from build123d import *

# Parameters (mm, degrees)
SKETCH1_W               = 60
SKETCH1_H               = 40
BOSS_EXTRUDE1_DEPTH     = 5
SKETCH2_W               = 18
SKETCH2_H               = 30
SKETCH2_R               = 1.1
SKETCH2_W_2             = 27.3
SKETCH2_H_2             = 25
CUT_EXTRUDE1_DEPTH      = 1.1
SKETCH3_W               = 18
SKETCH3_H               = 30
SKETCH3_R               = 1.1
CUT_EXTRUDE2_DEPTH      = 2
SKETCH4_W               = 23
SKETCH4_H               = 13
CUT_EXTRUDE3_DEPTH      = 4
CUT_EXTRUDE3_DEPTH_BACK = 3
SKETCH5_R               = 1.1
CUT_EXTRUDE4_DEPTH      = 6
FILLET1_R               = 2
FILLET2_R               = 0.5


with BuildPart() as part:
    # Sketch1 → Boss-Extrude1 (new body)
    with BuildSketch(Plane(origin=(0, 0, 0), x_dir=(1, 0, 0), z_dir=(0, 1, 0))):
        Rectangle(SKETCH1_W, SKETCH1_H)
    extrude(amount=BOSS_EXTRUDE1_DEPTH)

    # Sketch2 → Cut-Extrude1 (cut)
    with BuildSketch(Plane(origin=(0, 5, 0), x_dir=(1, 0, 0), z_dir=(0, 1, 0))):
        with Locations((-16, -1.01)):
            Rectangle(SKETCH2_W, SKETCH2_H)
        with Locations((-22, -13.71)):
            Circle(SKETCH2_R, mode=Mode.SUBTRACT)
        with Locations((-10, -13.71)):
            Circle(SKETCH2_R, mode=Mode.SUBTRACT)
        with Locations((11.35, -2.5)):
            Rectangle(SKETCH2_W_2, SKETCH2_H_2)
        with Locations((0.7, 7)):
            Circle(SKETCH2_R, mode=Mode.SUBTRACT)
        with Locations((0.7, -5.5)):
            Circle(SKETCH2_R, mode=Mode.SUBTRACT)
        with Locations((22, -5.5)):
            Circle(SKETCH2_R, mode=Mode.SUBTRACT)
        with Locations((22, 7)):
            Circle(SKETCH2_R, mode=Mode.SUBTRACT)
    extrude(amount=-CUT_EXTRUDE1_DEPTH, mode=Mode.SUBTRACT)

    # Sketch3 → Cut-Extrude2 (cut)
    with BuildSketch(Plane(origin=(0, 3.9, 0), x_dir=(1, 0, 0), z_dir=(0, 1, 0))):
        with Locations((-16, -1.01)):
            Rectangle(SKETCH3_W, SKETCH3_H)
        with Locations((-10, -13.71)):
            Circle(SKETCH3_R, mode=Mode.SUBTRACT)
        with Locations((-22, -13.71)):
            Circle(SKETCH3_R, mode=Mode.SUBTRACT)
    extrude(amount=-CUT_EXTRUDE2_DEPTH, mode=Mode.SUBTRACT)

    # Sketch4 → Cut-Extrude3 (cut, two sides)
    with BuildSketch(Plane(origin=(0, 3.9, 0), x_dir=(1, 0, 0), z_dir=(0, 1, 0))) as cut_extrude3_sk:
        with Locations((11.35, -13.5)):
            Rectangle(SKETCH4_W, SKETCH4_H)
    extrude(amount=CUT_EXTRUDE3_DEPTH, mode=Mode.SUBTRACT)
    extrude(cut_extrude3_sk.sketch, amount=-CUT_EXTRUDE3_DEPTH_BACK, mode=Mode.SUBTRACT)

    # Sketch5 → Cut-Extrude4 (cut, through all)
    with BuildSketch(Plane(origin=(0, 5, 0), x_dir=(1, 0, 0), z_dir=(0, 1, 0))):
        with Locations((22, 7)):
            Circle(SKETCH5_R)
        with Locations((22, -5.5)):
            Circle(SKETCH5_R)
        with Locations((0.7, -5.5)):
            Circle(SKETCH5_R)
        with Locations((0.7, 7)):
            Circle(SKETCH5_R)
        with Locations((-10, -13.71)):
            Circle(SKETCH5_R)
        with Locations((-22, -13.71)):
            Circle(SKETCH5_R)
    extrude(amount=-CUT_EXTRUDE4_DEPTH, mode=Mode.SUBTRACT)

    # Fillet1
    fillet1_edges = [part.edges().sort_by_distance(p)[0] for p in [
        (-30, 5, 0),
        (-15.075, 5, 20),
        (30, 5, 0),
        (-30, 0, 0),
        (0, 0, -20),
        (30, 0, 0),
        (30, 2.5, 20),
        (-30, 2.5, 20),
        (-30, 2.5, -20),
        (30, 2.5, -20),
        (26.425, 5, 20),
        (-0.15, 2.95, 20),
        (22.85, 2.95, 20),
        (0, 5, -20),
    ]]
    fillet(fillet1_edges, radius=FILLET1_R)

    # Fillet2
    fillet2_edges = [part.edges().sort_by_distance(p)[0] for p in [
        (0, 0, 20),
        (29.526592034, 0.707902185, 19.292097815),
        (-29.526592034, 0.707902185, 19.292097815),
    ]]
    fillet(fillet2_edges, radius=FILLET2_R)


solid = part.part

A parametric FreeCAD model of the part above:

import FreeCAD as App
import Part
import Sketcher


def edges_at(feature, points):
    """Names of the edges that pass closest to the given points."""
    edges = feature.Shape.Edges
    near = lambda p: min(range(len(edges)), key=lambda i: edges[i].distToShape(Part.Vertex(*p))[0])
    return sorted({f"Edge{near(p) + 1}" for p in points})


def add_polygon(sketch, points):
    """Adds a closed chain of lines whose ends are joined by coincident constraints."""
    first, n = sketch.GeometryCount, len(points)
    for a, b in zip(points, points[1:] + points[:1]):
        sketch.addGeometry(Part.LineSegment(App.Vector(*a, 0), App.Vector(*b, 0)), False)
    for i in range(n):
        sketch.addConstraint(Sketcher.Constraint("Coincident", first + i, 2, first + (i + 1) % n, 1))

doc = App.newDocument("Part")
body = doc.addObject("PartDesign::Body", "Body")

sketch1 = doc.addObject("Sketcher::SketchObject", "Sketch")
body.addObject(sketch1)
sketch1.AttachmentSupport = (doc.XZ_Plane, [""])
sketch1.MapMode = "FlatFace"
add_polygon(sketch1, [(-30, -20), (-30, 20), (30, 20), (30, -20)])
sketch1.addConstraint(Sketcher.Constraint("Vertical", 0))
sketch1.addConstraint(Sketcher.Constraint("Horizontal", 1))
sketch1.addConstraint(Sketcher.Constraint("Vertical", 2))
sketch1.addConstraint(Sketcher.Constraint("Horizontal", 3))
sketch1.addConstraint(Sketcher.Constraint("Symmetric", 0, 2, 2, 2, -1, 1))
sketch1.addConstraint(Sketcher.Constraint("DistanceX", 1, 1, 1, 2, 60.0))
sketch1.addConstraint(Sketcher.Constraint("DistanceY", 0, 1, 0, 2, 40.0))
pad1 = doc.addObject("PartDesign::Pad", "Pad")
body.addObject(pad1)
pad1.Profile = sketch1
pad1.Length = 5
pad1.Reversed = True

sketch2 = doc.addObject("Sketcher::SketchObject", "Sketch001")
body.addObject(sketch2)
sketch2.AttachmentSupport = (doc.XZ_Plane, [""])
sketch2.MapMode = "FlatFace"
sketch2.AttachmentOffset = App.Placement(App.Vector(0, 0, -5), App.Rotation())
add_polygon(sketch2, [(-25, -13.99), (-25, 16.01), (-7, 16.01), (-7, -13.99)])
sketch2.addGeometry(Part.Circle(App.Vector(-22, 13.71, 0), App.Vector(0, 0, 1), 1.1), False)
sketch2.addGeometry(Part.Circle(App.Vector(-10, 13.71, 0), App.Vector(0, 0, 1), 1.1), False)
add_polygon(sketch2, [(-2.3, -10), (-2.3, 15), (25, 15), (25, -10)])
sketch2.addGeometry(Part.Circle(App.Vector(0.7, 5.5, 0), App.Vector(0, 0, 1), 1.1), False)
sketch2.addGeometry(Part.Circle(App.Vector(22, 5.5, 0), App.Vector(0, 0, 1), 1.1), False)
sketch2.addGeometry(Part.Circle(App.Vector(0.7, -7, 0), App.Vector(0, 0, 1), 1.1), False)
sketch2.addGeometry(Part.Circle(App.Vector(22, -7, 0), App.Vector(0, 0, 1), 1.1), False)
sketch2.addConstraint(Sketcher.Constraint("Vertical", 0))
sketch2.addConstraint(Sketcher.Constraint("Horizontal", 1))
sketch2.addConstraint(Sketcher.Constraint("Vertical", 2))
sketch2.addConstraint(Sketcher.Constraint("Horizontal", 3))
sketch2.addConstraint(Sketcher.Constraint("Vertical", 6))
sketch2.addConstraint(Sketcher.Constraint("Horizontal", 7))
sketch2.addConstraint(Sketcher.Constraint("Vertical", 8))
sketch2.addConstraint(Sketcher.Constraint("Horizontal", 9))
sketch2.addConstraint(Sketcher.Constraint("Equal", 4, 5))
sketch2.addConstraint(Sketcher.Constraint("Equal", 5, 10))
sketch2.addConstraint(Sketcher.Constraint("Equal", 10, 11))
sketch2.addConstraint(Sketcher.Constraint("Equal", 11, 12))
sketch2.addConstraint(Sketcher.Constraint("Equal", 12, 13))
sketch2.addConstraint(Sketcher.Constraint("Horizontal", 4, 3, 5, 3))
sketch2.addConstraint(Sketcher.Constraint("Horizontal", 10, 3, 11, 3))
sketch2.addConstraint(Sketcher.Constraint("Horizontal", 12, 3, 13, 3))
sketch2.addConstraint(Sketcher.Constraint("Vertical", 10, 3, 12, 3))
sketch2.addConstraint(Sketcher.Constraint("Vertical", 11, 3, 13, 3))
sketch2.addConstraint(Sketcher.Constraint("Diameter", 4, 2.2))
sketch2.addConstraint(Sketcher.Constraint("DistanceX", 1, 1, 1, 2, 18.0))
sketch2.addConstraint(Sketcher.Constraint("DistanceY", 0, 1, 0, 2, 30.0))
sketch2.addConstraint(Sketcher.Constraint("DistanceY", 6, 1, 6, 2, 25.0))
sketch2.addConstraint(Sketcher.Constraint("DistanceX", 7, 1, 7, 2, 27.3))
sketch2.addConstraint(Sketcher.Constraint("DistanceX", 4, 3, -1, 1, 22.0))
sketch2.addConstraint(Sketcher.Constraint("DistanceX", 5, 3, -1, 1, 10.0))
sketch2.addConstraint(Sketcher.Constraint("DistanceX", -1, 1, 11, 3, 22.0))
sketch2.addConstraint(Sketcher.Constraint("DistanceY", 12, 3, -1, 1, 7.0))
sketch2.addConstraint(Sketcher.Constraint("DistanceX", 0, 2, -1, 1, 25.0))
sketch2.addConstraint(Sketcher.Constraint("DistanceY", -1, 1, 6, 2, 15.0))
sketch2.addConstraint(Sketcher.Constraint("DistanceX", -1, 1, 7, 2, 25.0))
sketch2.addConstraint(Sketcher.Constraint("DistanceX", 6, 2, 10, 3, 3.0))
sketch2.addConstraint(Sketcher.Constraint("DistanceY", -1, 1, 10, 3, 5.5))
sketch2.addConstraint(Sketcher.Constraint("DistanceY", 4, 3, 0, 2, 2.3))
sketch2.addConstraint(Sketcher.Constraint("DistanceY", -1, 1, 4, 3, 13.71))
pocket1 = doc.addObject("PartDesign::Pocket", "Pocket")
body.addObject(pocket1)
pocket1.Profile = sketch2
pocket1.Length = 1.1
pocket1.Reversed = True

sketch3 = doc.addObject("Sketcher::SketchObject", "Sketch002")
body.addObject(sketch3)
sketch3.AttachmentSupport = (doc.XZ_Plane, [""])
sketch3.MapMode = "FlatFace"
sketch3.AttachmentOffset = App.Placement(App.Vector(0, 0, -3.9), App.Rotation())
add_polygon(sketch3, [(-25, -13.99), (-25, 16.01), (-7, 16.01), (-7, -13.99)])
sketch3.addGeometry(Part.Circle(App.Vector(-22, 13.71, 0), App.Vector(0, 0, 1), 1.1), False)
sketch3.addGeometry(Part.Circle(App.Vector(-10, 13.71, 0), App.Vector(0, 0, 1), 1.1), False)
sketch3.addConstraint(Sketcher.Constraint("Vertical", 0))
sketch3.addConstraint(Sketcher.Constraint("Horizontal", 1))
sketch3.addConstraint(Sketcher.Constraint("Vertical", 2))
sketch3.addConstraint(Sketcher.Constraint("Horizontal", 3))
sketch3.addConstraint(Sketcher.Constraint("Equal", 4, 5))
sketch3.addConstraint(Sketcher.Constraint("Horizontal", 4, 3, 5, 3))
sketch3.addConstraint(Sketcher.Constraint("Diameter", 4, 2.2))
sketch3.addConstraint(Sketcher.Constraint("DistanceX", 1, 1, 1, 2, 18.0))
sketch3.addConstraint(Sketcher.Constraint("DistanceY", 0, 1, 0, 2, 30.0))
sketch3.addConstraint(Sketcher.Constraint("DistanceX", 4, 3, -1, 1, 22.0))
sketch3.addConstraint(Sketcher.Constraint("DistanceX", 5, 3, -1, 1, 10.0))
sketch3.addConstraint(Sketcher.Constraint("DistanceX", 0, 2, -1, 1, 25.0))
sketch3.addConstraint(Sketcher.Constraint("DistanceY", 4, 3, 0, 2, 2.3))
sketch3.addConstraint(Sketcher.Constraint("DistanceY", -1, 1, 4, 3, 13.71))
pocket2 = doc.addObject("PartDesign::Pocket", "Pocket001")
body.addObject(pocket2)
pocket2.Profile = sketch3
pocket2.Length = 2
pocket2.Reversed = True

sketch4 = doc.addObject("Sketcher::SketchObject", "Sketch003")
body.addObject(sketch4)
sketch4.AttachmentSupport = (doc.XZ_Plane, [""])
sketch4.MapMode = "FlatFace"
sketch4.AttachmentOffset = App.Placement(App.Vector(0, 0, -3.9), App.Rotation())
add_polygon(sketch4, [(-0.15, 7), (-0.15, 20), (22.85, 20), (22.85, 7)])
sketch4.addConstraint(Sketcher.Constraint("Vertical", 0))
sketch4.addConstraint(Sketcher.Constraint("Horizontal", 1))
sketch4.addConstraint(Sketcher.Constraint("Vertical", 2))
sketch4.addConstraint(Sketcher.Constraint("Horizontal", 3))
sketch4.addConstraint(Sketcher.Constraint("DistanceX", 1, 1, 1, 2, 23.0))
sketch4.addConstraint(Sketcher.Constraint("DistanceY", 0, 1, 0, 2, 13.0))
sketch4.addConstraint(Sketcher.Constraint("DistanceY", -1, 1, 0, 2, 20.0))
sketch4.addConstraint(Sketcher.Constraint("DistanceX", 0, 2, -1, 1, 0.15))
pocket3 = doc.addObject("PartDesign::Pocket", "Pocket002")
body.addObject(pocket3)
pocket3.Profile = sketch4
pocket3.Type = "TwoLengths"
pocket3.Length = 4
pocket3.Length2 = 3

sketch5 = doc.addObject("Sketcher::SketchObject", "Sketch004")
body.addObject(sketch5)
sketch5.AttachmentSupport = (doc.XZ_Plane, [""])
sketch5.MapMode = "FlatFace"
sketch5.AttachmentOffset = App.Placement(App.Vector(0, 0, -5), App.Rotation())
sketch5.addGeometry(Part.Circle(App.Vector(22, -7, 0), App.Vector(0, 0, 1), 1.1), False)
sketch5.addGeometry(Part.Circle(App.Vector(22, 5.5, 0), App.Vector(0, 0, 1), 1.1), False)
sketch5.addGeometry(Part.Circle(App.Vector(0.7, 5.5, 0), App.Vector(0, 0, 1), 1.1), False)
sketch5.addGeometry(Part.Circle(App.Vector(0.7, -7, 0), App.Vector(0, 0, 1), 1.1), False)
sketch5.addGeometry(Part.Circle(App.Vector(-10, 13.71, 0), App.Vector(0, 0, 1), 1.1), False)
sketch5.addGeometry(Part.Circle(App.Vector(-22, 13.71, 0), App.Vector(0, 0, 1), 1.1), False)
sketch5.addConstraint(Sketcher.Constraint("Equal", 0, 1))
sketch5.addConstraint(Sketcher.Constraint("Equal", 1, 2))
sketch5.addConstraint(Sketcher.Constraint("Equal", 2, 3))
sketch5.addConstraint(Sketcher.Constraint("Equal", 3, 4))
sketch5.addConstraint(Sketcher.Constraint("Equal", 4, 5))
sketch5.addConstraint(Sketcher.Constraint("Horizontal", 1, 3, 2, 3))
sketch5.addConstraint(Sketcher.Constraint("Horizontal", 0, 3, 3, 3))
sketch5.addConstraint(Sketcher.Constraint("Horizontal", 4, 3, 5, 3))
sketch5.addConstraint(Sketcher.Constraint("Vertical", 0, 3, 1, 3))
sketch5.addConstraint(Sketcher.Constraint("Vertical", 2, 3, 3, 3))
sketch5.addConstraint(Sketcher.Constraint("Diameter", 0, 2.2))
sketch5.addConstraint(Sketcher.Constraint("DistanceX", -1, 1, 0, 3, 22.0))
sketch5.addConstraint(Sketcher.Constraint("DistanceY", 0, 3, -1, 1, 7.0))
sketch5.addConstraint(Sketcher.Constraint("DistanceX", 4, 3, -1, 1, 10.0))
sketch5.addConstraint(Sketcher.Constraint("DistanceX", 5, 3, -1, 1, 22.0))
sketch5.addConstraint(Sketcher.Constraint("DistanceY", -1, 1, 1, 3, 5.5))
sketch5.addConstraint(Sketcher.Constraint("DistanceX", -1, 1, 2, 3, 0.7))
sketch5.addConstraint(Sketcher.Constraint("DistanceY", -1, 1, 4, 3, 13.71))
pocket4 = doc.addObject("PartDesign::Pocket", "Pocket003")
body.addObject(pocket4)
pocket4.Profile = sketch5
pocket4.Type = "ThroughAll"
pocket4.Reversed = True
doc.recompute()

fillet = doc.addObject("PartDesign::Fillet", "Fillet")
body.addObject(fillet)
fillet.Base = (pocket4, edges_at(pocket4, [
    (-30, 5, 0),
    (-15.075, 5, 20),
    (30, 5, 0),
    (-30, 0, 0),
    (0, 0, -20),
    (30, 0, 0),
    (30, 2.5, 20),
    (-30, 2.5, 20),
    (-30, 2.5, -20),
    (30, 2.5, -20),
    (26.425, 5, 20),
    (-0.15, 2.95, 20),
    (22.85, 2.95, 20),
    (0, 5, -20),
]))
fillet.Radius = 2
doc.recompute()

fillet2 = doc.addObject("PartDesign::Fillet", "Fillet001")
body.addObject(fillet2)
fillet2.Base = (fillet, edges_at(fillet, [(0, 0, 20), (29.527, 0.708, 19.292), (-29.527, 0.708, 19.292)]))
fillet2.Radius = 0.5

doc.recompute()
